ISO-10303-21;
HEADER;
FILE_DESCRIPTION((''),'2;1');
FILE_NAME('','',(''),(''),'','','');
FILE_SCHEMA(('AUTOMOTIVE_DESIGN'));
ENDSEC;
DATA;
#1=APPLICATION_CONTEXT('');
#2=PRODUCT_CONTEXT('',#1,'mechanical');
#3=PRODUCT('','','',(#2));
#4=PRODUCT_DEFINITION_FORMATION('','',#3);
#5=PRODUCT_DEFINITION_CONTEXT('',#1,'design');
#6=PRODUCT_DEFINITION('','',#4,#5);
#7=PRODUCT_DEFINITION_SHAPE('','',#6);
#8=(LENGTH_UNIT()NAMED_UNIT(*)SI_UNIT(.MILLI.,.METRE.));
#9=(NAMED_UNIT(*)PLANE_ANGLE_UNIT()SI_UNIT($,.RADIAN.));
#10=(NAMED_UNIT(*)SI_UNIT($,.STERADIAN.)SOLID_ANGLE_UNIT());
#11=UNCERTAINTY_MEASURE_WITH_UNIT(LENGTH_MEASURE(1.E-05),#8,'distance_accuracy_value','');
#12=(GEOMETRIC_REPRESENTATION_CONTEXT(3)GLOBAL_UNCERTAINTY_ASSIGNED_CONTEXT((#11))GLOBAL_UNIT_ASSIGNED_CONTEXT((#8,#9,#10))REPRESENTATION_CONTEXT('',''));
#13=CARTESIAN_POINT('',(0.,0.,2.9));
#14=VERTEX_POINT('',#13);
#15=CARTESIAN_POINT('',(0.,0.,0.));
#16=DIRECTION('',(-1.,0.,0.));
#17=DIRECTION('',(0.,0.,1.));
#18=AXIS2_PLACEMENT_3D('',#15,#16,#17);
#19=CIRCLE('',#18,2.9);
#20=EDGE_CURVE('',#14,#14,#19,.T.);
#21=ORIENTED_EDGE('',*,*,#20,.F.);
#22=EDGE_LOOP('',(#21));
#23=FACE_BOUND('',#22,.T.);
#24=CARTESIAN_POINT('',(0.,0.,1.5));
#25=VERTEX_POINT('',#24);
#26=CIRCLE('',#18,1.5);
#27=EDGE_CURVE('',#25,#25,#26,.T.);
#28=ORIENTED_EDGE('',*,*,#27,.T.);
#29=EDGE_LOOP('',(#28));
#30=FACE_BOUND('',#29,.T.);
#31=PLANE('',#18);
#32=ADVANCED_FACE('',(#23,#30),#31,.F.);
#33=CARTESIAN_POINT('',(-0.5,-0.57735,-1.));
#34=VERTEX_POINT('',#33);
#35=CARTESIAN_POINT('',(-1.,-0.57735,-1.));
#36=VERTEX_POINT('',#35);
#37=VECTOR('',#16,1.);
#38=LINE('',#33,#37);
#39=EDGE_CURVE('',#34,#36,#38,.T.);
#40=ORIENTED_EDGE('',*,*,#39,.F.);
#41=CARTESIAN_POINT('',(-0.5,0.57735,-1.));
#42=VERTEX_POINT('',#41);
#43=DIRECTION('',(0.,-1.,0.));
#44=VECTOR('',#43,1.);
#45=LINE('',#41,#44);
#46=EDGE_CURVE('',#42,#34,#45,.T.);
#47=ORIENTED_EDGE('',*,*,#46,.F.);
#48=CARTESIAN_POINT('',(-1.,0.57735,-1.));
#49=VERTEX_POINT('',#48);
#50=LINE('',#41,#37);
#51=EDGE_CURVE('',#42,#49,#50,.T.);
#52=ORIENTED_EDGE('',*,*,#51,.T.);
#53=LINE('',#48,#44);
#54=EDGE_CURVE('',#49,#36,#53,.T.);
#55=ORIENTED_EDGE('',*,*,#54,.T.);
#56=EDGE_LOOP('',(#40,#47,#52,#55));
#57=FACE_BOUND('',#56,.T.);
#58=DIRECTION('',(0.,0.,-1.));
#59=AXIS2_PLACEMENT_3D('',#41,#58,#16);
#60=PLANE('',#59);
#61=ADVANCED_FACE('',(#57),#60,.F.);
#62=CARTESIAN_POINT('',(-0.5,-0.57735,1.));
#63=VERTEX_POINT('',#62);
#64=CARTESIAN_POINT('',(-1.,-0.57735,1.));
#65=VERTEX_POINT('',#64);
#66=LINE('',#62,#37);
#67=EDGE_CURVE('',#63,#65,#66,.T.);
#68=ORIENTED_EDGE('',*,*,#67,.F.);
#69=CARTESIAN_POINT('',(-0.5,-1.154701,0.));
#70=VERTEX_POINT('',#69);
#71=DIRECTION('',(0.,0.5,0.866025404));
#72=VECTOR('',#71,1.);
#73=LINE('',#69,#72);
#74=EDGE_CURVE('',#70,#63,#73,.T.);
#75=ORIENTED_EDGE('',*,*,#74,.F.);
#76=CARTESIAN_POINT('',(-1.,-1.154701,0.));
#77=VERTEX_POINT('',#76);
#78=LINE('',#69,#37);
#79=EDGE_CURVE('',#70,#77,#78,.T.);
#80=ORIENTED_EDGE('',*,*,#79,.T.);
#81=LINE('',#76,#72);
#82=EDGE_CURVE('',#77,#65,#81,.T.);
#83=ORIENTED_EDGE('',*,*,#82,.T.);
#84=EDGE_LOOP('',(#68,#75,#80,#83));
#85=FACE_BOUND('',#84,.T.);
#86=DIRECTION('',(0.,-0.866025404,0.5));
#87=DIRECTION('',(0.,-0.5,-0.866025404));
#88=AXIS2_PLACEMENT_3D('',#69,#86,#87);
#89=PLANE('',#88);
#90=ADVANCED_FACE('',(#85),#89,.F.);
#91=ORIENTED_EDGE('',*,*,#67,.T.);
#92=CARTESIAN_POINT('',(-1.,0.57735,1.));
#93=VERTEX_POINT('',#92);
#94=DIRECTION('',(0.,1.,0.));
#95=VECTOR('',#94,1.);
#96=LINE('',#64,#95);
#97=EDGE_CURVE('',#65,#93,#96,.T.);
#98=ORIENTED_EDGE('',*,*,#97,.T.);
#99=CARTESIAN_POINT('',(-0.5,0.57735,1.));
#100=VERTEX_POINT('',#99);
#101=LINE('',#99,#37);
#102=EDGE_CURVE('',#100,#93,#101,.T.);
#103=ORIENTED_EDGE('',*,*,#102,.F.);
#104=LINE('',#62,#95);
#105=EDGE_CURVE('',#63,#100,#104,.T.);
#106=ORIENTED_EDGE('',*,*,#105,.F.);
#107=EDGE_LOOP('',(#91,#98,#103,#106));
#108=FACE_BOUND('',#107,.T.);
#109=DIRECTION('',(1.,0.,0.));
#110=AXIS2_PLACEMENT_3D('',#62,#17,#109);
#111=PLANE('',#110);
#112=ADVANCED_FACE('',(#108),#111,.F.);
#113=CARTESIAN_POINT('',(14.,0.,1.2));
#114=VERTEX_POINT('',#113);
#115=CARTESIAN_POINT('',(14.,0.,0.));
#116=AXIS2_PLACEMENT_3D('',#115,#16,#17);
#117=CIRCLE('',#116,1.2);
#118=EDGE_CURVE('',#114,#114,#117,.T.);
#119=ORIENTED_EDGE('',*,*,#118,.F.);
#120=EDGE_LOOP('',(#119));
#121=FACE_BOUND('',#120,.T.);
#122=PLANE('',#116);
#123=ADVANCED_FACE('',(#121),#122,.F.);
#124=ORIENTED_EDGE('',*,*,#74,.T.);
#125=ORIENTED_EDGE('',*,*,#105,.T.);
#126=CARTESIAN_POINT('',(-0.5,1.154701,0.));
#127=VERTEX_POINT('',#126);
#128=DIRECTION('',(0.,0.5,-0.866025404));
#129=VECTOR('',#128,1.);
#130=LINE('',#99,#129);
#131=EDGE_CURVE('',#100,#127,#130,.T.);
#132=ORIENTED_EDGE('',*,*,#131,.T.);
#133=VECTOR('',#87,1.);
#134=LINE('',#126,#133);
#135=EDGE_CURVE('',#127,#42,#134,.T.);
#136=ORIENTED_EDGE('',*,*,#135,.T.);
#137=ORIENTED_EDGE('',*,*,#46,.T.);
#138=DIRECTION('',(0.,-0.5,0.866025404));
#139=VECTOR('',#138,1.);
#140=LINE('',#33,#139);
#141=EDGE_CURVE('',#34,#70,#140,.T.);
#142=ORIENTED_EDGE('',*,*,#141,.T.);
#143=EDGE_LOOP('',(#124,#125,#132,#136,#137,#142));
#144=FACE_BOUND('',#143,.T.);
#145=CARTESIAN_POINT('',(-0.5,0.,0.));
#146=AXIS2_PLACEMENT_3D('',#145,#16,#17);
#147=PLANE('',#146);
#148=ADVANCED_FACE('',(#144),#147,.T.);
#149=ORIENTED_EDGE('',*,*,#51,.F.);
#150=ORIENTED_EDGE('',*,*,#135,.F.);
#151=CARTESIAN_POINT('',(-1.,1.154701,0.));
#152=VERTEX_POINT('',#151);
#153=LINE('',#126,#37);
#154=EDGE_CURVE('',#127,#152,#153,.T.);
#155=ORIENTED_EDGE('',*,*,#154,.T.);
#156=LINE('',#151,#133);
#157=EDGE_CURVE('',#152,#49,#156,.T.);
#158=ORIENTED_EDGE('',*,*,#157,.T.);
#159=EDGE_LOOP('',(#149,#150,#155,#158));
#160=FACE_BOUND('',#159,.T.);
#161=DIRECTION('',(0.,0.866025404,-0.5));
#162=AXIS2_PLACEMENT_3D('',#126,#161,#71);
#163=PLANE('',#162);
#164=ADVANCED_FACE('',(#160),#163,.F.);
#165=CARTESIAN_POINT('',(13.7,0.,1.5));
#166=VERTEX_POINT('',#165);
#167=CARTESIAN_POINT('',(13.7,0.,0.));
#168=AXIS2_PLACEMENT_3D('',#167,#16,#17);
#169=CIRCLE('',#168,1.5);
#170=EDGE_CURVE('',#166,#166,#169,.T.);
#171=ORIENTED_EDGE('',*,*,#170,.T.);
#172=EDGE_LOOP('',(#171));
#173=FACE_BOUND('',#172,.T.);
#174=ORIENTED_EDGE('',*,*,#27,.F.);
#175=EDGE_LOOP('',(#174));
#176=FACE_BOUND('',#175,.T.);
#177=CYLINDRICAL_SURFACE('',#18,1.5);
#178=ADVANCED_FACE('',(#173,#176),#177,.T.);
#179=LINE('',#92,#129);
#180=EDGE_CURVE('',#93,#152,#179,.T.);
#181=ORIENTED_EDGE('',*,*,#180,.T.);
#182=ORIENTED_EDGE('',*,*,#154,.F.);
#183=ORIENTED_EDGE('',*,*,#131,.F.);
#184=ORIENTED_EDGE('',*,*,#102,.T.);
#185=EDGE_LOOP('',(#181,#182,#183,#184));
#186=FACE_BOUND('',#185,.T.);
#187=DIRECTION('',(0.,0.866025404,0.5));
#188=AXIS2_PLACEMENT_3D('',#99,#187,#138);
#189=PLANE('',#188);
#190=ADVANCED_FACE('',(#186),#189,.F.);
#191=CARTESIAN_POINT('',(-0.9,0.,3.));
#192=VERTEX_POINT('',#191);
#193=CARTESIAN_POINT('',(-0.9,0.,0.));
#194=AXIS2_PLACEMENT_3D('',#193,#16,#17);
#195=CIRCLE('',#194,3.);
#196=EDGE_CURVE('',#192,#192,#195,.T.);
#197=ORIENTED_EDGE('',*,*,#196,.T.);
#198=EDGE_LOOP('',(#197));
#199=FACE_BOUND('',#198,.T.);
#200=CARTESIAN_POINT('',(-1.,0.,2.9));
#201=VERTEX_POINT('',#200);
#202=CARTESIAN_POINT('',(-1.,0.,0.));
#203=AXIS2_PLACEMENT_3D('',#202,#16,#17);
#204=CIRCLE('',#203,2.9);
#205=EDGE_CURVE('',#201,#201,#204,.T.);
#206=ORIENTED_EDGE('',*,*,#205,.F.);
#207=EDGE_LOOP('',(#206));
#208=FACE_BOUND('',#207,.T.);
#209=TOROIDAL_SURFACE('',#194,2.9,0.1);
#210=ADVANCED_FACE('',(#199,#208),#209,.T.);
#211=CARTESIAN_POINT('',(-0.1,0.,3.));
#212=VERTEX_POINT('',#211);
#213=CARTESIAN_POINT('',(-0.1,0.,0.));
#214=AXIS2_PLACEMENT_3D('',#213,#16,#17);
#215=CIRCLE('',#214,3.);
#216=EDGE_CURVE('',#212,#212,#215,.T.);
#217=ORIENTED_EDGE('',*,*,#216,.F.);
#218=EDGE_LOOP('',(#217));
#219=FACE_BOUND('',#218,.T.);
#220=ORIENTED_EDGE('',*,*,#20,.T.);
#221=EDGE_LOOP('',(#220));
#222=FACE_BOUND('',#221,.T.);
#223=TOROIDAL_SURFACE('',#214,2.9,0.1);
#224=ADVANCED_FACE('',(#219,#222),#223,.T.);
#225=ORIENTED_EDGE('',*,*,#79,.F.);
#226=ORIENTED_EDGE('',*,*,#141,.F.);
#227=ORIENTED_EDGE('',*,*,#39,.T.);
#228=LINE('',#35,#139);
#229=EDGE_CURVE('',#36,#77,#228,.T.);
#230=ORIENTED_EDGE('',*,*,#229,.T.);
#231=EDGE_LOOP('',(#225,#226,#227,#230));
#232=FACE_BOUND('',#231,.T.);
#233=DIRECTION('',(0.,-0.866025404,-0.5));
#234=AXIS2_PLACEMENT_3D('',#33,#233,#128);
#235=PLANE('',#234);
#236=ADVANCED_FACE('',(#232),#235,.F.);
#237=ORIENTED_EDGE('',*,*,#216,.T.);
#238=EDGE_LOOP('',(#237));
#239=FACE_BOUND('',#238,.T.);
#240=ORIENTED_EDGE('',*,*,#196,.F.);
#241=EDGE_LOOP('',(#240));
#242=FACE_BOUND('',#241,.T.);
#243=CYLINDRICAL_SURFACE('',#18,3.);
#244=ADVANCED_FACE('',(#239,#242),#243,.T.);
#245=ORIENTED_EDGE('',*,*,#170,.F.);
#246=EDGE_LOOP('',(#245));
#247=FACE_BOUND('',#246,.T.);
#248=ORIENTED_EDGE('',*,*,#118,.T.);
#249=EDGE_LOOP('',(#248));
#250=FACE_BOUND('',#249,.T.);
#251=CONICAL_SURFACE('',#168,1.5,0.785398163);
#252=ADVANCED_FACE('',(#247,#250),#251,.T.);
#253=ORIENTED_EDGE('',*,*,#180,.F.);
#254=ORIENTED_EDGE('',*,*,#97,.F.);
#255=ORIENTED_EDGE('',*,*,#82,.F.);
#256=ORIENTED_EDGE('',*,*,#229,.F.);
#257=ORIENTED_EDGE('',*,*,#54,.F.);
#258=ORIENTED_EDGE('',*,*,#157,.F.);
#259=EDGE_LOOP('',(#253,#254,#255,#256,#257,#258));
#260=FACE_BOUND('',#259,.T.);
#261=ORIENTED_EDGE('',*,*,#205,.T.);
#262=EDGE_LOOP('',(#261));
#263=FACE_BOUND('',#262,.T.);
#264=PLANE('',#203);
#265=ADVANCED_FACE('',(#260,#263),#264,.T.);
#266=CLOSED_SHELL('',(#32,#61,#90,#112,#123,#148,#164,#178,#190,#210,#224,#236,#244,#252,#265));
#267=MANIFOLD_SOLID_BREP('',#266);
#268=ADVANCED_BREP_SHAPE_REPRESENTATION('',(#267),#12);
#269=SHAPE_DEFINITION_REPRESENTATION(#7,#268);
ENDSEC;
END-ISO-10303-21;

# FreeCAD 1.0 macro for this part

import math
import FreeCAD as App
import Part
import Sketcher

V = App.Vector
Q = App.Units.Quantity


def add_polygon(sketch, points):
    """Adds a closed chain of lines whose ends are joined by coincident constraints."""
    first, n = sketch.GeometryCount, len(points)
    for a, b in zip(points, points[1:] + points[:1]):
        sketch.addGeometry(Part.LineSegment(App.Vector(*a, 0), App.Vector(*b, 0)), False)
    for i in range(n):
        sketch.addConstraint(Sketcher.Constraint("Coincident", first + i, 2, first + (i + 1) % n, 1))

doc = App.newDocument("Part")
body = doc.addObject("PartDesign::Body", "Body")

# Sketch on XY plane
sketch1 = doc.addObject("Sketcher::SketchObject", "Sketch")
body.addObject(sketch1)
sketch1.AttachmentSupport = (doc.XY_Plane, [""])
sketch1.MapMode = "FlatFace"
sketch1.addGeometry([
    Part.LineSegment(V(14, 1.2, 0), V(13.7, 1.5, 0)),  # 0
    Part.LineSegment(V(13.7, 1.5, 0), V(0, 1.5, 0)),  # 1
    Part.LineSegment(V(0, 1.5, 0), V(0, 2.9, 0)),  # 2
    Part.ArcOfCircle(Part.Circle(V(-0.1, 2.9, 0), V(0, 0, 1), 0.1), math.radians(0), math.radians(90)),  # 3
    Part.LineSegment(V(-0.1, 3, 0), V(-0.9, 3, 0)),  # 4
    Part.ArcOfCircle(Part.Circle(V(-0.9, 2.9, 0), V(0, 0, 1), 0.1), math.radians(90), math.radians(180)),  # 5
    Part.LineSegment(V(-1, 2.9, 0), V(-1, 0, 0)),  # 6
    Part.LineSegment(V(-1, 0, 0), V(14, 0, 0)),  # 7
    Part.LineSegment(V(14, 0, 0), V(14, 1.2, 0)),  # 8
], False)
sketch1.addConstraint([
    Sketcher.Constraint("Coincident", 0, 2, 1, 1),
    Sketcher.Constraint("Coincident", 1, 2, 2, 1),
    Sketcher.Constraint("Tangent", 2, 2, 3, 1),
    Sketcher.Constraint("Tangent", 3, 2, 4, 1),
    Sketcher.Constraint("Tangent", 4, 2, 5, 1),
    Sketcher.Constraint("Tangent", 5, 2, 6, 1),
    Sketcher.Constraint("Coincident", 6, 2, 7, 1),
    Sketcher.Constraint("Coincident", 7, 2, 8, 1),
    Sketcher.Constraint("Coincident", 8, 2, 0, 1),
    Sketcher.Constraint("Horizontal", 1),
    Sketcher.Constraint("Vertical", 2),
    Sketcher.Constraint("Horizontal", 4),
    Sketcher.Constraint("Vertical", 6),
    Sketcher.Constraint("Horizontal", 7),
    Sketcher.Constraint("Vertical", 8),
    Sketcher.Constraint("Equal", 3, 5),
    Sketcher.Constraint("PointOnObject", 1, 2, -2),
    Sketcher.Constraint("PointOnObject", 6, 2, -1),
    Sketcher.Constraint("Radius", 3, 0.1),
    Sketcher.Constraint("DistanceX", 7, 1, 7, 2, 15.0),
    Sketcher.Constraint("Angle", 0, Q("135 deg")),
    Sketcher.Constraint("DistanceX", 1, 2, 1, 1, 13.7),
    Sketcher.Constraint("DistanceX", 4, 2, 4, 1, 0.8),
    Sketcher.Constraint("DistanceY", 2, 1, 2, 2, 1.4),
    Sketcher.Constraint("DistanceY", 6, 2, 6, 1, 2.9),
])
revolution = doc.addObject("PartDesign::Revolution", "Revolution")
body.addObject(revolution)
revolution.Profile = sketch1
revolution.ReferenceAxis = (sketch1, ["H_Axis"])
revolution.Angle = 360

# Sketch on YZ plane
sketch2 = doc.addObject("Sketcher::SketchObject", "Sketch001")
body.addObject(sketch2)
sketch2.AttachmentSupport = (doc.YZ_Plane, [""])
sketch2.MapMode = "FlatFace"
sketch2.AttachmentOffset = App.Placement(V(0, 0, -1), App.Rotation())
add_polygon(sketch2, [(-0.6, 1), (0.6, 1), (1.2, 0), (0.6, -1), (-0.6, -1), (-1.2, 0)])  # lines 0-5
sketch2.addConstraint([
    Sketcher.Constraint("Horizontal", 0),
    Sketcher.Constraint("Horizontal", 3),
    Sketcher.Constraint("Symmetric", 0, 2, 3, 2, -1, 1),
    Sketcher.Constraint("Symmetric", 1, 2, 4, 2, -1, 1),
    Sketcher.Constraint("PointOnObject", 1, 2, -1),
    Sketcher.Constraint("Parallel", 2, 5),
    Sketcher.Constraint("Vertical", 0, 2, 2, 2),
    Sketcher.Constraint("Angle", 1, Q("-60 deg")),
    Sketcher.Constraint("DistanceY", -1, 1, 0, 2, 1.0),
    Sketcher.Constraint("DistanceX", 0, 1, 0, 2, 1.154701),
])
pocket1 = doc.addObject("PartDesign::Pocket", "Pocket")
body.addObject(pocket1)
pocket1.Profile = sketch2
pocket1.Length = 0.5
pocket1.Reversed = True

doc.recompute()
